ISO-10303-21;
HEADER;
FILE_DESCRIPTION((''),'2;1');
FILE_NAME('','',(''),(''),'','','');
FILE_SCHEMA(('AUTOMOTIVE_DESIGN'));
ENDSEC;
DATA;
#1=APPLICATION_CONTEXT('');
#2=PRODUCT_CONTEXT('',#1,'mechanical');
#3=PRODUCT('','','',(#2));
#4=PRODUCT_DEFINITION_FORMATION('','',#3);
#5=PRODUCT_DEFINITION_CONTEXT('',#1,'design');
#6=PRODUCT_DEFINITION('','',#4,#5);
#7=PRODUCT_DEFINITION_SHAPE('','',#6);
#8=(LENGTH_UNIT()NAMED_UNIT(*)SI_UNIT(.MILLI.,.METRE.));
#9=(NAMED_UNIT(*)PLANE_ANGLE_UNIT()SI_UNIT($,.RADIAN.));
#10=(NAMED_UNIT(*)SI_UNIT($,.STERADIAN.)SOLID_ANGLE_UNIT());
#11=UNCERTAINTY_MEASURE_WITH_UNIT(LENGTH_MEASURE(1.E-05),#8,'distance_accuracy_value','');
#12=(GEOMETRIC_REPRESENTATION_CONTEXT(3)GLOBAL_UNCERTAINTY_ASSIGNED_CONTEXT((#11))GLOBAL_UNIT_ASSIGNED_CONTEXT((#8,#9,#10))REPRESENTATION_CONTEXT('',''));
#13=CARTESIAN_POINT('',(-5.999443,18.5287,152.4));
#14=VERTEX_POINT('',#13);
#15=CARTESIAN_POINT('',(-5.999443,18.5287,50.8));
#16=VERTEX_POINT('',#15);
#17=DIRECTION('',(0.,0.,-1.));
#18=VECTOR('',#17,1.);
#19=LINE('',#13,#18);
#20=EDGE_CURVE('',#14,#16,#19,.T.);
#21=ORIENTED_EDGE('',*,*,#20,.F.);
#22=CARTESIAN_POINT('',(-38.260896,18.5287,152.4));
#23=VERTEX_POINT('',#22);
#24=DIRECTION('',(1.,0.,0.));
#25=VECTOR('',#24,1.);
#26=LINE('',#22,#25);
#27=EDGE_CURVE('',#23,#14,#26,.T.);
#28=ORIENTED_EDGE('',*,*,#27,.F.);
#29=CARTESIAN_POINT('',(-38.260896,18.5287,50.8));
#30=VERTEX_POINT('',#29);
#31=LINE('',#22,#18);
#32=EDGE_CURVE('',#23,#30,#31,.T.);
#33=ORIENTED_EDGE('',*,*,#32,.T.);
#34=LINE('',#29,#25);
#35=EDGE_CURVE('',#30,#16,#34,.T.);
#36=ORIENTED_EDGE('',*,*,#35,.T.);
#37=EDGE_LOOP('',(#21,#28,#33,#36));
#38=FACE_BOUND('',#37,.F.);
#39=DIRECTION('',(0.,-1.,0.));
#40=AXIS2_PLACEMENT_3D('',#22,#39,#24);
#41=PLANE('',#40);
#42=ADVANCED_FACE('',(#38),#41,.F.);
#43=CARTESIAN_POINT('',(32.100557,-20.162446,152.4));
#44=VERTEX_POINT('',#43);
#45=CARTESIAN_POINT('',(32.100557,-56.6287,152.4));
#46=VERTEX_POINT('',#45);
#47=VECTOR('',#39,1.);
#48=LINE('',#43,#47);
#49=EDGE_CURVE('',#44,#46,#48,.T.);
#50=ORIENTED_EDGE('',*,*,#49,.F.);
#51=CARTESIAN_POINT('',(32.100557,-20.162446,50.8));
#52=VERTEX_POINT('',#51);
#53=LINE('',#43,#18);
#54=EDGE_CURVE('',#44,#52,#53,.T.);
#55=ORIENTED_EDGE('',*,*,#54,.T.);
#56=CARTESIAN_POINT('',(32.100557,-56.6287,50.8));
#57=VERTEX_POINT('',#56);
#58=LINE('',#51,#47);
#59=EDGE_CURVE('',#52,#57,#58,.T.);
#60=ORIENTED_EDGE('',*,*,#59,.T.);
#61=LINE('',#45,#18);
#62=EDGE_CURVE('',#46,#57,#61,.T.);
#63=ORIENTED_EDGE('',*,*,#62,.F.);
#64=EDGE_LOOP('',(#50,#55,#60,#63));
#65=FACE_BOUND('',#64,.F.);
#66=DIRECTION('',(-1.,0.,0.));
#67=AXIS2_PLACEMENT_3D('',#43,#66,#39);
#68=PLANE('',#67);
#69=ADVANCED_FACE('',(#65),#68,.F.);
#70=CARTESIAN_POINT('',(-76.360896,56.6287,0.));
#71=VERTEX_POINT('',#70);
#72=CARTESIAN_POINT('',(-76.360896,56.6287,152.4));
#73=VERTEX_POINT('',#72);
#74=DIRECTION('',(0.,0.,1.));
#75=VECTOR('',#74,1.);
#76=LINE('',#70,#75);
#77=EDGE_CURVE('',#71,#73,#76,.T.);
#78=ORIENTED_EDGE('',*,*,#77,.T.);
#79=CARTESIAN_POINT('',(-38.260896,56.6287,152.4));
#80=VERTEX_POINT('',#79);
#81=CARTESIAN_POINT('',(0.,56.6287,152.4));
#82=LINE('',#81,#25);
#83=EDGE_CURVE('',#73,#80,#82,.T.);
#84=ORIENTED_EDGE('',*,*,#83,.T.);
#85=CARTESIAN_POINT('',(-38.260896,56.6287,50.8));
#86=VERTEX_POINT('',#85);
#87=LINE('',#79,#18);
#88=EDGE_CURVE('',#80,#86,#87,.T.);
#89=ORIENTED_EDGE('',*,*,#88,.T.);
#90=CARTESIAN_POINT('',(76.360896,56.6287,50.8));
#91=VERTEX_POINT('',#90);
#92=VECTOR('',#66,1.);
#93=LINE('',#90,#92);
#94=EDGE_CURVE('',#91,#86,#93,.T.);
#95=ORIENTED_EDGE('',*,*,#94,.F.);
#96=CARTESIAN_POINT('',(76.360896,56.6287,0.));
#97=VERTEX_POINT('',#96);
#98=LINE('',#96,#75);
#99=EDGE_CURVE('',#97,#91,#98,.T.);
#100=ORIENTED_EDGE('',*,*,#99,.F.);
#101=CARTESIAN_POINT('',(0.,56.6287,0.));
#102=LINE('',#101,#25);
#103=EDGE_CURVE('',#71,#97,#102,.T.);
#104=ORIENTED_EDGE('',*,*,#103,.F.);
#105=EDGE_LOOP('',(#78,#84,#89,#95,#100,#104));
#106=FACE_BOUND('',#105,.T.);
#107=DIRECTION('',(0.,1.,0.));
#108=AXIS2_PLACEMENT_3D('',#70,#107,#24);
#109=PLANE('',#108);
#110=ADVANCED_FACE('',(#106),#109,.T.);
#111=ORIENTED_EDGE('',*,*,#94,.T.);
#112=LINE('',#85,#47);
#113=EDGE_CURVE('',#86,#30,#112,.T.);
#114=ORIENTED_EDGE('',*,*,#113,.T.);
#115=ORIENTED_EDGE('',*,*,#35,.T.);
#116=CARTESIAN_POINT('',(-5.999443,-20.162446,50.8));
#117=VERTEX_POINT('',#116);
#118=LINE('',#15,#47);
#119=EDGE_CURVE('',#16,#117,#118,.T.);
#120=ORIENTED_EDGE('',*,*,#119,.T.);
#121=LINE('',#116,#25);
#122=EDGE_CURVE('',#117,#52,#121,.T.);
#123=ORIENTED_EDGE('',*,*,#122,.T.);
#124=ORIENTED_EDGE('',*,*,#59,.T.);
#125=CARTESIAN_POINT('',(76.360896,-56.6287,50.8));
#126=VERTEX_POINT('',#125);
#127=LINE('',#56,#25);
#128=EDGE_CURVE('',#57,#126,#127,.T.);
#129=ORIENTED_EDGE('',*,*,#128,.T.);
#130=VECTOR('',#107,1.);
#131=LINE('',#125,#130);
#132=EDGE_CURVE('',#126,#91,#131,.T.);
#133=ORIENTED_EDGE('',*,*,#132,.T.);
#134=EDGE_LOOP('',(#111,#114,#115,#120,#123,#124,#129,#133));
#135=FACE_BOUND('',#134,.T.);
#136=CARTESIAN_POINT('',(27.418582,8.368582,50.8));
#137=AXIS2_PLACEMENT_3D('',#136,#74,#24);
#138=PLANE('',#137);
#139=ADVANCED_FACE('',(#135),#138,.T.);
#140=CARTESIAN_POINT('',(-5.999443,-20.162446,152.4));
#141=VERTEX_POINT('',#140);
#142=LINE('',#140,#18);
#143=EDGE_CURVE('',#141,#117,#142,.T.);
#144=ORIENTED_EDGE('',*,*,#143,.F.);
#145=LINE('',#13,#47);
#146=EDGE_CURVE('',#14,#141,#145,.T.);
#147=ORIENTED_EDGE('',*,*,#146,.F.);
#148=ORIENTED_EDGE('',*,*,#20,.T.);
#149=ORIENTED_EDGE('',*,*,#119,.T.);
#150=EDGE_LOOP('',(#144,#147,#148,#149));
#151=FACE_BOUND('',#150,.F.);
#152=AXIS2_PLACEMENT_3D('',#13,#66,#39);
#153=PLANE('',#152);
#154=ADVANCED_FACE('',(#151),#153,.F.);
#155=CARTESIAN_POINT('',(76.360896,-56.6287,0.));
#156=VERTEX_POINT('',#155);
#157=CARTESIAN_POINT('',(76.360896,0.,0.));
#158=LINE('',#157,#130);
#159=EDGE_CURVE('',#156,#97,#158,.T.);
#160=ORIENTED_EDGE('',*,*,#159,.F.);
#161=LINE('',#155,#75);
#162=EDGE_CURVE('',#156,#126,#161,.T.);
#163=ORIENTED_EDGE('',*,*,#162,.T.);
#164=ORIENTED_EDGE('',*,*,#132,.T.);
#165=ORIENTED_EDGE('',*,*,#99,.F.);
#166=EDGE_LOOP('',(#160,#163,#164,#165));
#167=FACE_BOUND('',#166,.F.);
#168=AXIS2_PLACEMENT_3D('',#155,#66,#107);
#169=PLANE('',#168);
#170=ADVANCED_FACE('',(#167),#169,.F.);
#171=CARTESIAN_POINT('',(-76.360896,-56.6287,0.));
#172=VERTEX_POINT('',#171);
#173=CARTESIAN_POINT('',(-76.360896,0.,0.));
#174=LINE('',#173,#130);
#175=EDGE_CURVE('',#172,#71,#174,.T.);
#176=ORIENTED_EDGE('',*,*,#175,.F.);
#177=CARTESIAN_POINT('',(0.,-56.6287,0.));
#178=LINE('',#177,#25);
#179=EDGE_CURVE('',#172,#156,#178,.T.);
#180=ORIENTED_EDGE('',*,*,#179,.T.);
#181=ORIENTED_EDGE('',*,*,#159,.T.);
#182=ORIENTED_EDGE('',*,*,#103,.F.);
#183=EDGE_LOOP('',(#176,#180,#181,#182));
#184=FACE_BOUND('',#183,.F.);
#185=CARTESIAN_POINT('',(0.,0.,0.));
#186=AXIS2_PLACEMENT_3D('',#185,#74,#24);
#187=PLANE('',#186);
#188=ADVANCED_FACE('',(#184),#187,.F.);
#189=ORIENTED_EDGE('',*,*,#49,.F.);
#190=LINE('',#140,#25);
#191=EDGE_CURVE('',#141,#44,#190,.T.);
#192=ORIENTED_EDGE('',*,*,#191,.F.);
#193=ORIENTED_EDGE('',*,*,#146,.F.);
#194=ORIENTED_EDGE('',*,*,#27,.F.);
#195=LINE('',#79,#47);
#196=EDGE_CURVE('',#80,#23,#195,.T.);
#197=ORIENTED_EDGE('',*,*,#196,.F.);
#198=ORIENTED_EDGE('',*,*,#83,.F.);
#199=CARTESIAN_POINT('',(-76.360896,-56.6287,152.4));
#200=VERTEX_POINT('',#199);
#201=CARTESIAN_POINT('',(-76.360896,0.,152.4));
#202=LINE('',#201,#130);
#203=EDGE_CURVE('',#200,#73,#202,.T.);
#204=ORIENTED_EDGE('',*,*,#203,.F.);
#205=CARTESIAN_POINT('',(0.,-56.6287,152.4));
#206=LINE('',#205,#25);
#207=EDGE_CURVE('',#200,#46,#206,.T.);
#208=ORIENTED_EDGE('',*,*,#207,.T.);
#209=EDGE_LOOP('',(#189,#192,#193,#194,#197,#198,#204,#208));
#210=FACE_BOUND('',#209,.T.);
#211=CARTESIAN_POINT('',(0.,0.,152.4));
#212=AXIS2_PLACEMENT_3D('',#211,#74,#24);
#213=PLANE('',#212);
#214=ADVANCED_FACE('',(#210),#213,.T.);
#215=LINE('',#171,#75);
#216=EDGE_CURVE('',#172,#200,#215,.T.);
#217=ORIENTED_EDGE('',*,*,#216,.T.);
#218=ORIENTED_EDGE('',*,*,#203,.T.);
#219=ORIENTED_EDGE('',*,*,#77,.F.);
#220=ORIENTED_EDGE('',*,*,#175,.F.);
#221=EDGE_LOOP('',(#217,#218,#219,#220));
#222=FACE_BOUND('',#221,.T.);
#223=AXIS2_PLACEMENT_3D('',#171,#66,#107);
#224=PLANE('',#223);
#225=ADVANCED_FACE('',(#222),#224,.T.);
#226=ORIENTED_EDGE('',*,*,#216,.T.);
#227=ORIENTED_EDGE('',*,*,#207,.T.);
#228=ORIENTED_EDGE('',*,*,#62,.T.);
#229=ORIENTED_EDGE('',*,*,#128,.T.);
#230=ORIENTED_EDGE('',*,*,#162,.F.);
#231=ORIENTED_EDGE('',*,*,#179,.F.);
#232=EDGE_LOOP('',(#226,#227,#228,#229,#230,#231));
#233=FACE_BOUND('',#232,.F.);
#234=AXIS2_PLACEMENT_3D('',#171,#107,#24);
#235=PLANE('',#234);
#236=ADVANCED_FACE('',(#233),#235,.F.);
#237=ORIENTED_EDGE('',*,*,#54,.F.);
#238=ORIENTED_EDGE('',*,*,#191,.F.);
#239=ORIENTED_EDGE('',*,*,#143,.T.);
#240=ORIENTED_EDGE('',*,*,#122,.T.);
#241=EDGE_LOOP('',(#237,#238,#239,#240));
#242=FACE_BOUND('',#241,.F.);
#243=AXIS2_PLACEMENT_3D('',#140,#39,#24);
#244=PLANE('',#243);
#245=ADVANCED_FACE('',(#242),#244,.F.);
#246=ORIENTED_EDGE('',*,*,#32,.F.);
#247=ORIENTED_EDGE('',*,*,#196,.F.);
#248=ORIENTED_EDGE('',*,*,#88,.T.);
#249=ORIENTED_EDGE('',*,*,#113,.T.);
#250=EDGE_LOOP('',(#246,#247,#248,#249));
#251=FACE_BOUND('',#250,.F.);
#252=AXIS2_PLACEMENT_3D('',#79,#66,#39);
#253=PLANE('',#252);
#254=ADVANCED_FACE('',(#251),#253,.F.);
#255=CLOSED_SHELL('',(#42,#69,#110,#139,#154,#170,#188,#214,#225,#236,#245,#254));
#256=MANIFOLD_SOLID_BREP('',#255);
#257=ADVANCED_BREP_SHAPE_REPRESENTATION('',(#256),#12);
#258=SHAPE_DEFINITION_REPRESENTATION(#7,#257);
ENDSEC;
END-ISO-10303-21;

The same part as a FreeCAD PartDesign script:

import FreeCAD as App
import Part
import Sketcher

V = App.Vector
Q = App.Units.Quantity

doc = App.newDocument("Part")
body = doc.addObject("PartDesign::Body", "Body")

# Sketch on XY plane
sketch1 = body.newObject("Sketcher::SketchObject", "Sketch")
sketch1.AttachmentSupport = (doc.getObject("XY_Plane"), [""])
sketch1.MapMode = "FlatFace"
sketch1.addGeometry([
    Part.LineSegment(V(-76.360896, 56.6287, 0), V(-76.360896, -56.6287, 0)),
    Part.LineSegment(V(-76.360896, -56.6287, 0), V(76.360896, -56.6287, 0)),
    Part.LineSegment(V(76.360896, -56.6287, 0), V(76.360896, 56.6287, 0)),
    Part.LineSegment(V(76.360896, 56.6287, 0), V(-76.360896, 56.6287, 0)),
], False)
sketch1.addConstraint([
    Sketcher.Constraint("Coincident", 0, 2, 1, 1),
    Sketcher.Constraint("Coincident", 1, 2, 2, 1),
    Sketcher.Constraint("Coincident", 2, 2, 3, 1),
    Sketcher.Constraint("Coincident", 3, 2, 0, 1),
    Sketcher.Constraint("Vertical", 0),
    Sketcher.Constraint("Horizontal", 1),
    Sketcher.Constraint("Vertical", 2),
    Sketcher.Constraint("Horizontal", 3),
    Sketcher.Constraint("Symmetric", 0, 2, 2, 2, -1, 1),
    Sketcher.Constraint("DistanceY", 0, 2, 0, 1, 113.2574),
    Sketcher.Constraint("DistanceX", 1, 1, 1, 2, 152.721792),
])
pad1 = body.newObject("PartDesign::Pad", "Pad")
pad1.Profile = sketch1
pad1.Length = Q("6 in")

# Sketch on XY plane
sketch2 = body.newObject("Sketcher::SketchObject", "Sketch001")
sketch2.AttachmentSupport = (doc.getObject("XY_Plane"), [""])
sketch2.MapMode = "FlatFace"
sketch2.AttachmentOffset = App.Placement(V(0, 0, 6 * 25.4), App.Rotation())
sketch2.addGeometry([
    Part.LineSegment(V(76.360896, 56.6287, 0), V(-38.260896, 56.6287, 0)),  # 0
    Part.LineSegment(V(-38.260896, 56.6287, 0), V(-38.260896, 18.5287, 0)),  # 1
    Part.LineSegment(V(-38.260896, 18.5287, 0), V(-5.999443, 18.5287, 0)),  # 2
    Part.LineSegment(V(-5.999443, 18.5287, 0), V(-5.999443, -20.162446, 0)),  # 3
    Part.LineSegment(V(-5.999443, -20.162446, 0), V(32.100557, -20.162446, 0)),  # 4
    Part.LineSegment(V(32.100557, -20.162446, 0), V(32.100557, -56.6287, 0)),  # 5
    Part.LineSegment(V(32.100557, -56.6287, 0), V(76.360896, -56.6287, 0)),  # 6
    Part.LineSegment(V(76.360896, -56.6287, 0), V(76.360896, 56.6287, 0)),  # 7
], False)
sketch2.addConstraint([
    Sketcher.Constraint("Coincident", 0, 2, 1, 1),
    Sketcher.Constraint("Coincident", 1, 2, 2, 1),
    Sketcher.Constraint("Coincident", 2, 2, 3, 1),
    Sketcher.Constraint("Coincident", 3, 2, 4, 1),
    Sketcher.Constraint("Coincident", 4, 2, 5, 1),
    Sketcher.Constraint("Coincident", 5, 2, 6, 1),
    Sketcher.Constraint("Coincident", 6, 2, 7, 1),
    Sketcher.Constraint("Coincident", 7, 2, 0, 1),
    Sketcher.Constraint("Horizontal", 0),
    Sketcher.Constraint("Vertical", 1),
    Sketcher.Constraint("Horizontal", 2),
    Sketcher.Constraint("Vertical", 3),
    Sketcher.Constraint("Horizontal", 4),
    Sketcher.Constraint("Vertical", 5),
    Sketcher.Constraint("Horizontal", 6),
    Sketcher.Constraint("Vertical", 7),
    Sketcher.Constraint("Equal", 4, 1),
    Sketcher.Constraint("DistanceX", 4, 1, 4, 2, Q("1.5 in")),
    Sketcher.Constraint("DistanceY", 7, 1, 7, 2, 113.2574),
    Sketcher.Constraint("DistanceX", 0, 2, 0, 1, 114.621792),
    Sketcher.Constraint("DistanceX", 6, 1, 6, 2, 44.260339),
    Sketcher.Constraint("DistanceY", -1, 1, 0, 2, 56.6287),
    Sketcher.Constraint("DistanceY", 3, 2, 3, 1, 38.691146),
    Sketcher.Constraint("DistanceX", 0, 2, -1, 1, 38.260896),
])
pocket1 = body.newObject("PartDesign::Pocket", "Pocket")
pocket1.Profile = sketch2
pocket1.Length = Q("4 in")

doc.recompute()
